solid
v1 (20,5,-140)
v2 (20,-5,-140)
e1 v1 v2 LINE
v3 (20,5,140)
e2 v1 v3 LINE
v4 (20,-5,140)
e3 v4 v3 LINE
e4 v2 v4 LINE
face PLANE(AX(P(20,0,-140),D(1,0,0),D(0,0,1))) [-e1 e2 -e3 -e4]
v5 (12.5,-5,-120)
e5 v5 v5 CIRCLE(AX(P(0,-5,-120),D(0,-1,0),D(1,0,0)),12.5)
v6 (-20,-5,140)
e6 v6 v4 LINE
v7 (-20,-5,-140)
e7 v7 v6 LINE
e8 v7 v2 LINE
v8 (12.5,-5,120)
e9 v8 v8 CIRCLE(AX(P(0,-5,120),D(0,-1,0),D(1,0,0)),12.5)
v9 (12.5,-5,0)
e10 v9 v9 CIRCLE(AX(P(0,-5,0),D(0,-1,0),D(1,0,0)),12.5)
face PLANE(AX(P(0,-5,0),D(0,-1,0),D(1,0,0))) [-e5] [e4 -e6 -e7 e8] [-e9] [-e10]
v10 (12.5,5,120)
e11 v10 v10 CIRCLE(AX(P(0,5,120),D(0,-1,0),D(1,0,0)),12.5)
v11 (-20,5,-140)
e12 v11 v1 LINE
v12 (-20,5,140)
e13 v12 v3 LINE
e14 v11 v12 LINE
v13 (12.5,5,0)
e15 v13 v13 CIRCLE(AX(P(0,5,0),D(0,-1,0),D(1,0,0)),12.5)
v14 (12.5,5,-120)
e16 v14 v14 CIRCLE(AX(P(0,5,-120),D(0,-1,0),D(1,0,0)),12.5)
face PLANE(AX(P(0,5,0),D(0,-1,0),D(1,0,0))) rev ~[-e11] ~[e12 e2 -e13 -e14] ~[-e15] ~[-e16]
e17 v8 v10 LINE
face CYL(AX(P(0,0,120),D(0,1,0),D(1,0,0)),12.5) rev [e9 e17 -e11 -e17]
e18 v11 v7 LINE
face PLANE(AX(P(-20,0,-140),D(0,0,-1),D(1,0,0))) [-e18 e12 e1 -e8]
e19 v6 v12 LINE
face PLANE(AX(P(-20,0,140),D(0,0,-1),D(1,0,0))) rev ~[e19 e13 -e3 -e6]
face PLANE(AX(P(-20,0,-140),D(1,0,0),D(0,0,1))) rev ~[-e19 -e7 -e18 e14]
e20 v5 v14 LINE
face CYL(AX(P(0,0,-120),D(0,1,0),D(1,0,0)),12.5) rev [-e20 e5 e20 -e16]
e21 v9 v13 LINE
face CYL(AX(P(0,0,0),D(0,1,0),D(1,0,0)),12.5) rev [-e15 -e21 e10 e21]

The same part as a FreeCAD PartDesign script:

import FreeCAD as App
import Part
import Sketcher

V = App.Vector

doc = App.newDocument("Part")
body = doc.addObject("PartDesign::Body", "Body")

sketch1 = body.newObject("Sketcher::SketchObject", "Sketch")
sketch1.AttachmentSupport = (doc.getObject("XZ_Plane"), [""])
sketch1.MapMode = "FlatFace"
sketch1.addGeometry([
    Part.LineSegment(V(-20, 140, 0), V(-20, -140, 0)),
    Part.LineSegment(V(-20, -140, 0), V(20, -140, 0)),
    Part.LineSegment(V(20, -140, 0), V(20, 140, 0)),
    Part.LineSegment(V(20, 140, 0), V(-20, 140, 0)),
    Part.Circle(V(0, -120, 0), V(0, 0, 1), 12.5),
    Part.Circle(V(0, 0, 0), V(0, 0, 1), 12.5),
    Part.Circle(V(0, 120, 0), V(0, 0, 1), 12.5),
], False)
sketch1.addConstraint([
    Sketcher.Constraint("Coincident", 0, 2, 1, 1),
    Sketcher.Constraint("Coincident", 1, 2, 2, 1),
    Sketcher.Constraint("Coincident", 2, 2, 3, 1),
    Sketcher.Constraint("Coincident", 3, 2, 0, 1),
    Sketcher.Constraint("Vertical", 0),
    Sketcher.Constraint("Horizontal", 1),
    Sketcher.Constraint("Vertical", 2),
    Sketcher.Constraint("Horizontal", 3),
    Sketcher.Constraint("Coincident", 5, 3, -1, 1),
    Sketcher.Constraint("Equal", 4, 5),
    Sketcher.Constraint("Equal", 5, 6),
    Sketcher.Constraint("Symmetric", 4, 3, 6, 3, -1, 1),
    Sketcher.Constraint("Symmetric", 0, 2, 2, 2, -1, 1),
    Sketcher.Constraint("PointOnObject", 4, 3, -2),
    Sketcher.Constraint("Diameter", 4, 25.0),
    Sketcher.Constraint("DistanceX", 1, 1, 1, 2, 40.0),
    Sketcher.Constraint("DistanceY", 0, 2, 0, 1, 280.0),
    Sketcher.Constraint("DistanceY", 4, 3, -1, 1, 120.0),
])
pad1 = body.newObject("PartDesign::Pad", "Pad")
pad1.Profile = sketch1
pad1.Length = 10
pad1.Midplane = True

doc.recompute()
